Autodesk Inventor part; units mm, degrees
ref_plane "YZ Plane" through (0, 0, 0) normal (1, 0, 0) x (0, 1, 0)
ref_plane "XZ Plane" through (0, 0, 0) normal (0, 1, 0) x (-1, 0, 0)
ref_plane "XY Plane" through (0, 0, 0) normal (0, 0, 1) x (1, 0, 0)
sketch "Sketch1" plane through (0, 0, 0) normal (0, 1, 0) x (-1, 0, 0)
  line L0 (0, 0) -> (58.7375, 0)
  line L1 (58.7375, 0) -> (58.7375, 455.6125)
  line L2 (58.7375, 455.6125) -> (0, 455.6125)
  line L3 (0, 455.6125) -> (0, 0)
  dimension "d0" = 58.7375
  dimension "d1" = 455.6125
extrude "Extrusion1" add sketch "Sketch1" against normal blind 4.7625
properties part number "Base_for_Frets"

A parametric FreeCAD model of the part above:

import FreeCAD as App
import Part
import Sketcher

V = App.Vector
Q = App.Units.Quantity

doc = App.newDocument("Part")
body = doc.addObject("PartDesign::Body", "Body")

# Sketch on XZ plane
sketch1 = body.newObject("Sketcher::SketchObject", "Sketch")
sketch1.AttachmentSupport = (doc.getObject("XZ_Plane"), [""])
sketch1.MapMode = "FlatFace"
sketch1.addGeometry([
    Part.LineSegment(V(0, 456, 0), V(0, 0, 0)),
    Part.LineSegment(V(0, 0, 0), V(-59, 0, 0)),
    Part.LineSegment(V(-59, 0, 0), V(-59, 456, 0)),
    Part.LineSegment(V(-59, 456, 0), V(0, 456, 0)),
], False)
sketch1.addConstraint([
    Sketcher.Constraint("Coincident", 0, 2, 1, 1),
    Sketcher.Constraint("Coincident", 1, 2, 2, 1),
    Sketcher.Constraint("Coincident", 2, 2, 3, 1),
    Sketcher.Constraint("Coincident", 3, 2, 0, 1),
    Sketcher.Constraint("Vertical", 0),
    Sketcher.Constraint("Horizontal", 1),
    Sketcher.Constraint("Vertical", 2),
    Sketcher.Constraint("Horizontal", 3),
    Sketcher.Constraint("Coincident", 0, 2, -1, 1),
    Sketcher.Constraint("DistanceX", 1, 2, 1, 1, Q("2.3125 in")),
    Sketcher.Constraint("DistanceY", 0, 2, 0, 1, Q("17.9375 in")),
])
pad1 = body.newObject("PartDesign::Pad", "Pad")
pad1.Profile = sketch1
pad1.Length = Q("0.1875 in")

doc.recompute()
